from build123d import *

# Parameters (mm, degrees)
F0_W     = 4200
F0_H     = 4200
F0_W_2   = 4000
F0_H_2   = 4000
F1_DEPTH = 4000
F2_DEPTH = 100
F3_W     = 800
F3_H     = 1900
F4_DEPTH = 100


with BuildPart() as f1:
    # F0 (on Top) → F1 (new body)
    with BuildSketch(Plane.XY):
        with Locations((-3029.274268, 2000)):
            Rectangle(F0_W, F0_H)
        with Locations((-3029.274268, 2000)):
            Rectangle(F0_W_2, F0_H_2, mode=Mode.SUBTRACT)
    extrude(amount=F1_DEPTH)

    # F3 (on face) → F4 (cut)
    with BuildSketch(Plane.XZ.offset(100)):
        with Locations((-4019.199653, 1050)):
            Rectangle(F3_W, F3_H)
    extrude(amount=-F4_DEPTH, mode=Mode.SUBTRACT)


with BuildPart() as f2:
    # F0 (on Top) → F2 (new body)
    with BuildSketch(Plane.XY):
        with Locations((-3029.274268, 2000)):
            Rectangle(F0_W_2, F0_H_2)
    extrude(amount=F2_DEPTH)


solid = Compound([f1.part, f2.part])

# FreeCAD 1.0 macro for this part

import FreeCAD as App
import Part
import Sketcher

V = App.Vector


def add_polygon(sketch, points):
    """Adds a closed chain of lines whose ends are joined by coincident constraints."""
    first, n = sketch.GeometryCount, len(points)
    for a, b in zip(points, points[1:] + points[:1]):
        sketch.addGeometry(Part.LineSegment(App.Vector(*a, 0), App.Vector(*b, 0)), False)
    for i in range(n):
        sketch.addConstraint(Sketcher.Constraint("Coincident", first + i, 2, first + (i + 1) % n, 1))

doc = App.newDocument("Part")
body = doc.addObject("PartDesign::Body", "Body")

# Sketch on XY plane
sketch1 = body.newObject("Sketcher::SketchObject", "Sketch")
sketch1.AttachmentSupport = (doc.getObject("XY_Plane"), [""])
sketch1.MapMode = "FlatFace"
add_polygon(sketch1, [(-5129, 4100), (-5129, -100), (-929, -100), (-929, 4100)])  # lines 0-3
add_polygon(sketch1, [(-1029, 0), (-5029, 0), (-5029, 4000), (-1029, 4000)])  # lines 4-7
sketch1.addConstraint(Sketcher.Constraint("Vertical", 0))
sketch1.addConstraint(Sketcher.Constraint("Horizontal", 1))
sketch1.addConstraint(Sketcher.Constraint("Vertical", 2))
sketch1.addConstraint(Sketcher.Constraint("Horizontal", 3))
sketch1.addConstraint(Sketcher.Constraint("Horizontal", 4))
sketch1.addConstraint(Sketcher.Constraint("Vertical", 5))
sketch1.addConstraint(Sketcher.Constraint("Horizontal", 6))
sketch1.addConstraint(Sketcher.Constraint("Vertical", 7))
sketch1.addConstraint(Sketcher.Constraint("PointOnObject", 4, 2, -1))
sketch1.addConstraint(Sketcher.Constraint("Equal", 3, 0))
sketch1.addConstraint(Sketcher.Constraint("Equal", 6, 5))
sketch1.addConstraint(Sketcher.Constraint("DistanceX", 1, 1, 1, 2, 4200.0))
sketch1.addConstraint(Sketcher.Constraint("DistanceX", 4, 2, 4, 1, 4000.0))
sketch1.addConstraint(Sketcher.Constraint("DistanceY", 0, 2, -1, 1, 100.0))
sketch1.addConstraint(Sketcher.Constraint("DistanceX", 0, 2, 4, 2, 100.0))
sketch1.addConstraint(Sketcher.Constraint("DistanceX", 0, 2, -1, 1, 5129.274268))
pad1 = body.newObject("PartDesign::Pad", "Pad")
pad1.Profile = sketch1
pad1.Length = 4000

# Sketch on XZ plane
sketch2 = body.newObject("Sketcher::SketchObject", "Sketch001")
sketch2.AttachmentSupport = (doc.getObject("XZ_Plane"), [""])
sketch2.MapMode = "FlatFace"
sketch2.AttachmentOffset = App.Placement(V(0, 0, 100), App.Rotation())
add_polygon(sketch2, [(-4419, 2000), (-4419, 100), (-3619, 100), (-3619, 2000)])  # lines 0-3
sketch2.addConstraint(Sketcher.Constraint("Vertical", 0))
sketch2.addConstraint(Sketcher.Constraint("Horizontal", 1))
sketch2.addConstraint(Sketcher.Constraint("Vertical", 2))
sketch2.addConstraint(Sketcher.Constraint("Horizontal", 3))
sketch2.addConstraint(Sketcher.Constraint("DistanceX", 1, 1, 1, 2, 800.0))
sketch2.addConstraint(Sketcher.Constraint("DistanceY", 0, 2, 0, 1, 1900.0))
sketch2.addConstraint(Sketcher.Constraint("DistanceY", -1, 1, 0, 2, 100.0))
sketch2.addConstraint(Sketcher.Constraint("DistanceX", 0, 2, -1, 1, 4419.199653))
pocket1 = body.newObject("PartDesign::Pocket", "Pocket")
pocket1.Profile = sketch2
pocket1.Length = 100
body2 = doc.addObject("PartDesign::Body", "Body001")

# Sketch on XY plane
sketch3 = body2.newObject("Sketcher::SketchObject", "Sketch002")
sketch3.AttachmentSupport = (doc.getObject("XY_Plane001"), [""])
sketch3.MapMode = "FlatFace"
add_polygon(sketch3, [(-5029, 4000), (-5029, 0), (-1029, 0), (-1029, 4000)])  # lines 0-3
sketch3.addConstraint(Sketcher.Constraint("Vertical", 0))
sketch3.addConstraint(Sketcher.Constraint("Horizontal", 1))
sketch3.addConstraint(Sketcher.Constraint("Vertical", 2))
sketch3.addConstraint(Sketcher.Constraint("Horizontal", 3))
sketch3.addConstraint(Sketcher.Constraint("PointOnObject", 0, 2, -1))
sketch3.addConstraint(Sketcher.Constraint("Equal", 3, 0))
sketch3.addConstraint(Sketcher.Constraint("DistanceX", 1, 1, 1, 2, 4000.0))
sketch3.addConstraint(Sketcher.Constraint("DistanceX", 0, 2, -1, 1, 5029.274268))
pad2 = body2.newObject("PartDesign::Pad", "Pad001")
pad2.Profile = sketch3
pad2.Length = 100

doc.recompute()
